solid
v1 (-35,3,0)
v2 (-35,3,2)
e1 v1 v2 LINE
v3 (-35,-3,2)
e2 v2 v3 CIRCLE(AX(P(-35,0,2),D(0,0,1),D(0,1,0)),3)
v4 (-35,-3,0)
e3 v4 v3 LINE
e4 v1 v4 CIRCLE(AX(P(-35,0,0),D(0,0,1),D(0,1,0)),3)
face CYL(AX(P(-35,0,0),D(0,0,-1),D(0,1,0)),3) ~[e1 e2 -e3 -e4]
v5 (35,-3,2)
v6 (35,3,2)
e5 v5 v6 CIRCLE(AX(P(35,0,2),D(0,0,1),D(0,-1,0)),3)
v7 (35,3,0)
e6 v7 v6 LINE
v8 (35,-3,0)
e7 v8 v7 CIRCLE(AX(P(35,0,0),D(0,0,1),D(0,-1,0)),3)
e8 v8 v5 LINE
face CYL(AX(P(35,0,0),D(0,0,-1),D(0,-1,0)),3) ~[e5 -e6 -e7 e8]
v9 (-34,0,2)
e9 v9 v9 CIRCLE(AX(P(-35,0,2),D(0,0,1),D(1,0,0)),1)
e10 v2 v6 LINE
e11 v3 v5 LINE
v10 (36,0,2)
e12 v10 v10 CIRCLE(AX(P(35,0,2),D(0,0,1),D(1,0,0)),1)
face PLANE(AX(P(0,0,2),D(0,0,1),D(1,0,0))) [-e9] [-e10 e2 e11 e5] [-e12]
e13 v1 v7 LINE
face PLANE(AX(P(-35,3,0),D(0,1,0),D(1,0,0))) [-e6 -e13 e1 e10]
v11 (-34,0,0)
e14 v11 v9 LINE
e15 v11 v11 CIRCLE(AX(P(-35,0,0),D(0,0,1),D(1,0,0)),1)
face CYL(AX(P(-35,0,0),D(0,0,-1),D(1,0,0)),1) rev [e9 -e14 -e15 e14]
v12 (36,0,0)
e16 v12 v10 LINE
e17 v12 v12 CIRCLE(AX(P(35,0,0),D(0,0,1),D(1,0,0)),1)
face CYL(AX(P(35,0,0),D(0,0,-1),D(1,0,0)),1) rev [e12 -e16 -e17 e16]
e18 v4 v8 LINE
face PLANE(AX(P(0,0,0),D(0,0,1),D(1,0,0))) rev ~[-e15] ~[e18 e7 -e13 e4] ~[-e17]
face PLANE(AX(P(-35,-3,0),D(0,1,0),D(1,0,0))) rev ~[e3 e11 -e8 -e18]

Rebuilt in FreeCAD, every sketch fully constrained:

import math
import FreeCAD as App
import Part
import Sketcher

V = App.Vector

doc = App.newDocument("Part")
body = doc.addObject("PartDesign::Body", "Body")

sketch1 = body.newObject("Sketcher::SketchObject", "Sketch")
sketch1.AttachmentSupport = (doc.getObject("XY_Plane"), [""])
sketch1.MapMode = "FlatFace"
sketch1.addGeometry(Part.LineSegment(V(35, 3, 0), V(-35, 3, 0)), False)
sketch1.addGeometry(Part.ArcOfCircle(Part.Circle(V(-35, 0, 0), V(0, 0, 1), 3), math.radians(90), math.radians(270)), False)
sketch1.addGeometry(Part.LineSegment(V(-35, -3, 0), V(35, -3, 0)), False)
sketch1.addGeometry(Part.ArcOfCircle(Part.Circle(V(35, 0, 0), V(0, 0, 1), 3), math.radians(-90), math.radians(90)), False)
sketch1.addGeometry(Part.Circle(V(-35, 0, 0), V(0, 0, 1), 1), False)
sketch1.addGeometry(Part.Circle(V(35, 0, 0), V(0, 0, 1), 1), False)
sketch1.addConstraint(Sketcher.Constraint("Tangent", 0, 2, 1, 1))
sketch1.addConstraint(Sketcher.Constraint("Tangent", 1, 2, 2, 1))
sketch1.addConstraint(Sketcher.Constraint("Tangent", 2, 2, 3, 1))
sketch1.addConstraint(Sketcher.Constraint("Tangent", 3, 2, 0, 1))
sketch1.addConstraint(Sketcher.Constraint("Horizontal", 0))
sketch1.addConstraint(Sketcher.Constraint("Horizontal", 2))
sketch1.addConstraint(Sketcher.Constraint("Coincident", 4, 3, 1, 3))
sketch1.addConstraint(Sketcher.Constraint("Coincident", 5, 3, 3, 3))
sketch1.addConstraint(Sketcher.Constraint("Equal", 4, 5))
sketch1.addConstraint(Sketcher.Constraint("Symmetric", 1, 3, 3, 3, -1, 1))
sketch1.addConstraint(Sketcher.Constraint("Diameter", 4, 2.0))
sketch1.addConstraint(Sketcher.Constraint("DistanceX", 1, 3, -1, 1, 35.0))
sketch1.addConstraint(Sketcher.Constraint("Radius", 1, 3.0))
pad1 = body.newObject("PartDesign::Pad", "Pad")
pad1.Profile = sketch1
pad1.Length = 2

doc.recompute()
